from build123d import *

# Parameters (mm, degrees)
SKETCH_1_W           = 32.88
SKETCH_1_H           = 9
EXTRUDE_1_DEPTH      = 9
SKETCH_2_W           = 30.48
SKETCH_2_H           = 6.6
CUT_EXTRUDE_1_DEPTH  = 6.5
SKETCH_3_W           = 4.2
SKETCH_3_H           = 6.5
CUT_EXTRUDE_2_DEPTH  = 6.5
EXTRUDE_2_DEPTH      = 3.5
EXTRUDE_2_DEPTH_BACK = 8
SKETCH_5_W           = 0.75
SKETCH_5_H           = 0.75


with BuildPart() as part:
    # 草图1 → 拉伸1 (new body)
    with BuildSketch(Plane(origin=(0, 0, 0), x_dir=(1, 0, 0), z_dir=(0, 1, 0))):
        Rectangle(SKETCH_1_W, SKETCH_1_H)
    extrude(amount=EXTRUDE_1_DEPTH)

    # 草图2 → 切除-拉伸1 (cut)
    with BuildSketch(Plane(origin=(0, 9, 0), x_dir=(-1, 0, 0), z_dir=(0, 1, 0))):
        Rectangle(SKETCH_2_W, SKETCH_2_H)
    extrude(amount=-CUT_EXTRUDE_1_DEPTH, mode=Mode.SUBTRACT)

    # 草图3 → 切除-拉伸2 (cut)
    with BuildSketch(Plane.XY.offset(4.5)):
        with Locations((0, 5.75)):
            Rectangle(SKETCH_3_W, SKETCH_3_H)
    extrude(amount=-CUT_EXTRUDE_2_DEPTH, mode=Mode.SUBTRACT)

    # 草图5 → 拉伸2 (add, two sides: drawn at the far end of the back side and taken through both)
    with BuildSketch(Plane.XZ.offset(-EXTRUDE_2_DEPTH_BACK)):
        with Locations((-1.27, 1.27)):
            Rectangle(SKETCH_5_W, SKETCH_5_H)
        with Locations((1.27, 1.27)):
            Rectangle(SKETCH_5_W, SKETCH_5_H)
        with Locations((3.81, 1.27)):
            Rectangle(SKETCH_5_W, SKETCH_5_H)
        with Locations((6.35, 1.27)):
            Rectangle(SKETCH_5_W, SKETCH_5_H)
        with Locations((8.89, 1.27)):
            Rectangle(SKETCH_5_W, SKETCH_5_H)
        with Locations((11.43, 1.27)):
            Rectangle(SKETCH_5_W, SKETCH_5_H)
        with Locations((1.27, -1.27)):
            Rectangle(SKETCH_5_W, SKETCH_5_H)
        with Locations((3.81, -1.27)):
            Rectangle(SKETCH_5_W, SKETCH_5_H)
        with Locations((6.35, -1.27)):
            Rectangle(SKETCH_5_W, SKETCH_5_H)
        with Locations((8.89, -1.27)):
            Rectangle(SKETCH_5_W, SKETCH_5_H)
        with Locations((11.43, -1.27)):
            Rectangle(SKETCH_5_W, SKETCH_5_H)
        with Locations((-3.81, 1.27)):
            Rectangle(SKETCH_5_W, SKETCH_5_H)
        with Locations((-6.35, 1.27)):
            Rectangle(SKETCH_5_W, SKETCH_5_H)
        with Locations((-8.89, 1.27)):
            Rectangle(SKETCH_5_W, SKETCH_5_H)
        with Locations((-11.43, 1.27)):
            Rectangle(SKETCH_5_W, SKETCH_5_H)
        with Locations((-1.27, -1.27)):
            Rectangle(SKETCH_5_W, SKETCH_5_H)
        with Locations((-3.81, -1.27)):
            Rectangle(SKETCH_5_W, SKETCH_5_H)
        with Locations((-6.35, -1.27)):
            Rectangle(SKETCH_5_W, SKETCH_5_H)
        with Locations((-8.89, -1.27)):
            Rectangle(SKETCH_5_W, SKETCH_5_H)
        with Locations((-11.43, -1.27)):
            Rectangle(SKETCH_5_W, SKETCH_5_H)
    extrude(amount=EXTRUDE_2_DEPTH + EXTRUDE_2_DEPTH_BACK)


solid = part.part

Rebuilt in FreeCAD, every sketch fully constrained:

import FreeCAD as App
import Part
import Sketcher
from FreeCAD import Vector
Q = App.Units.Quantity

doc = App.newDocument("Part")
params = doc.addObject("Spreadsheet::Sheet", "Params")
for row, (alias, value) in enumerate([
    ("sketch1_height", "9 mm"),
    ("sketch1_width", "32.88 mm"),
    ("pad1_length", "9 mm"),
    ("sketch2_height", "6.6 mm"),
    ("sketch2_width", "30.48 mm"),
    ("pocket1_length", "6.5 mm"),
    ("sketch3_width", "4.2 mm"),
    ("sketch3_height", "6.5 mm"),
    ("pocket2_length", "6.5 mm"),
    ("sketch4_width", "0.75 mm"),
    ("pad2_length", "3.5 mm"),
    ("pad2_length2", "8 mm"),
], start=1):
    params.set(f"A{row}", alias)
    params.set(f"B{row}", "=" + value)
    params.setAlias(f"B{row}", alias)

body = doc.addObject("PartDesign::Body", "Body")

sketch1 = body.newObject("Sketcher::SketchObject", "Sketch")
sketch1.AttachmentSupport = (doc.getObject("XZ_Plane"), [""])
sketch1.MapMode = "FlatFace"
sketch1.addGeometry([
    Part.LineSegment(Vector(-16, -4, 0), Vector(-16, 4, 0)),
    Part.LineSegment(Vector(-16, 4, 0), Vector(16, 4, 0)),
    Part.LineSegment(Vector(16, 4, 0), Vector(16, -4, 0)),
    Part.LineSegment(Vector(16, -4, 0), Vector(-16, -4, 0)),
], False)
sketch1.addConstraint([
    Sketcher.Constraint("Coincident", 0, 2, 1, 1),
    Sketcher.Constraint("Coincident", 1, 2, 2, 1),
    Sketcher.Constraint("Coincident", 2, 2, 3, 1),
    Sketcher.Constraint("Coincident", 3, 2, 0, 1),
    Sketcher.Constraint("Vertical", 0),
    Sketcher.Constraint("Horizontal", 1),
    Sketcher.Constraint("Vertical", 2),
    Sketcher.Constraint("Horizontal", 3),
    Sketcher.Constraint("Symmetric", 0, 2, 2, 2, -1, 1),
    Sketcher.Constraint("DistanceY", 0, 1, 0, 2, Q("9 mm")),
    Sketcher.Constraint("DistanceX", 1, 1, 1, 2, Q("32.88 mm")),
])
sketch1.setExpression("Constraints[9]", "Params.sketch1_height")
sketch1.setExpression("Constraints[10]", "Params.sketch1_width")
pad1 = body.newObject("PartDesign::Pad", "Pad")
pad1.Profile = sketch1
pad1.setExpression("Length", "Params.pad1_length")
pad1.Reversed = True

sketch2 = body.newObject("Sketcher::SketchObject", "Sketch001")
sketch2.AttachmentSupport = (doc.getObject("XZ_Plane"), [""])
sketch2.MapMode = "FlatFace"
sketch2.AttachmentOffset = App.Placement(Vector(0, 0, -9), App.Rotation())
sketch2.addGeometry([
    Part.LineSegment(Vector(15, 3, 0), Vector(15, -3, 0)),
    Part.LineSegment(Vector(15, -3, 0), Vector(-15, -3, 0)),
    Part.LineSegment(Vector(-15, -3, 0), Vector(-15, 3, 0)),
    Part.LineSegment(Vector(-15, 3, 0), Vector(15, 3, 0)),
], False)
sketch2.addConstraint([
    Sketcher.Constraint("Coincident", 0, 2, 1, 1),
    Sketcher.Constraint("Coincident", 1, 2, 2, 1),
    Sketcher.Constraint("Coincident", 2, 2, 3, 1),
    Sketcher.Constraint("Coincident", 3, 2, 0, 1),
    Sketcher.Constraint("Vertical", 0),
    Sketcher.Constraint("Horizontal", 1),
    Sketcher.Constraint("Vertical", 2),
    Sketcher.Constraint("Horizontal", 3),
    Sketcher.Constraint("Symmetric", 0, 2, 2, 2, -1, 1),
    Sketcher.Constraint("DistanceY", 0, 2, 0, 1, Q("6.6 mm")),
    Sketcher.Constraint("DistanceX", 1, 2, 1, 1, Q("30.48 mm")),
])
sketch2.setExpression("Constraints[9]", "Params.sketch2_height")
sketch2.setExpression("Constraints[10]", "Params.sketch2_width")
pocket1 = body.newObject("PartDesign::Pocket", "Pocket")
pocket1.Profile = sketch2
pocket1.setExpression("Length", "Params.pocket1_length")
pocket1.Reversed = True

sketch3 = body.newObject("Sketcher::SketchObject", "Sketch002")
sketch3.AttachmentSupport = (doc.getObject("XY_Plane"), [""])
sketch3.MapMode = "FlatFace"
sketch3.AttachmentOffset = App.Placement(Vector(0, 0, 4.5), App.Rotation())
sketch3.addGeometry([
    Part.LineSegment(Vector(-2.1, 9, 0), Vector(-2.1, 2.5, 0)),
    Part.LineSegment(Vector(-2.1, 2.5, 0), Vector(2.1, 2.5, 0)),
    Part.LineSegment(Vector(2.1, 2.5, 0), Vector(2.1, 9, 0)),
    Part.LineSegment(Vector(2.1, 9, 0), Vector(-2.1, 9, 0)),
], False)
sketch3.addConstraint([
    Sketcher.Constraint("Coincident", 0, 2, 1, 1),
    Sketcher.Constraint("Coincident", 1, 2, 2, 1),
    Sketcher.Constraint("Coincident", 2, 2, 3, 1),
    Sketcher.Constraint("Coincident", 3, 2, 0, 1),
    Sketcher.Constraint("Vertical", 0),
    Sketcher.Constraint("Horizontal", 1),
    Sketcher.Constraint("Vertical", 2),
    Sketcher.Constraint("Horizontal", 3),
    Sketcher.Constraint("DistanceX", 1, 1, 1, 2, Q("4.2 mm")),
    Sketcher.Constraint("DistanceY", 0, 2, 0, 1, Q("6.5 mm")),
    Sketcher.Constraint("DistanceY", -1, 1, 2, 2, Q("9 mm")),
    Sketcher.Constraint("DistanceX", 0, 2, -1, 1, Q("2.1 mm")),
])
sketch3.setExpression("Constraints[8]", "Params.sketch3_width")
sketch3.setExpression("Constraints[9]", "Params.sketch3_height")
pocket2 = body.newObject("PartDesign::Pocket", "Pocket001")
pocket2.Profile = sketch3
pocket2.setExpression("Length", "Params.pocket2_length")

sketch4 = body.newObject("Sketcher::SketchObject", "Sketch003")
sketch4.AttachmentSupport = (doc.getObject("XZ_Plane"), [""])
sketch4.MapMode = "FlatFace"
sketch4.addGeometry([
    Part.LineSegment(Vector(-1.6, 1.6, 0), Vector(-1.6, 0.9, 0)),
    Part.LineSegment(Vector(-1.6, 0.9, 0), Vector(-0.9, 0.9, 0)),
    Part.LineSegment(Vector(-0.9, 0.9, 0), Vector(-0.9, 1.6, 0)),
    Part.LineSegment(Vector(-0.9, 1.6, 0), Vector(-1.6, 1.6, 0)),
    Part.LineSegment(Vector(0.9, 1.6, 0), Vector(0.9, 0.9, 0)),
    Part.LineSegment(Vector(0.9, 0.9, 0), Vector(1.6, 0.9, 0)),
    Part.LineSegment(Vector(1.6, 0.9, 0), Vector(1.6, 1.6, 0)),
    Part.LineSegment(Vector(1.6, 1.6, 0), Vector(0.9, 1.6, 0)),
    Part.LineSegment(Vector(3.4, 1.6, 0), Vector(3.4, 0.9, 0)),
    Part.LineSegment(Vector(3.4, 0.9, 0), Vector(4.2, 0.9, 0)),
    Part.LineSegment(Vector(4.2, 0.9, 0), Vector(4.2, 1.6, 0)),
    Part.LineSegment(Vector(4.2, 1.6, 0), Vector(3.4, 1.6, 0)),
    Part.LineSegment(Vector(6, 1.6, 0), Vector(6, 0.9, 0)),
    Part.LineSegment(Vector(6, 0.9, 0), Vector(6.7, 0.9, 0)),
    Part.LineSegment(Vector(6.7, 0.9, 0), Vector(6.7, 1.6, 0)),
    Part.LineSegment(Vector(6.7, 1.6, 0), Vector(6, 1.6, 0)),
    Part.LineSegment(Vector(8.5, 1.6, 0), Vector(8.5, 0.9, 0)),
    Part.LineSegment(Vector(8.5, 0.9, 0), Vector(9.3, 0.9, 0)),
    Part.LineSegment(Vector(9.3, 0.9, 0), Vector(9.3, 1.6, 0)),
    Part.LineSegment(Vector(9.3, 1.6, 0), Vector(8.5, 1.6, 0)),
    Part.LineSegment(Vector(11.1, 1.6, 0), Vector(11.1, 0.9, 0)),
    Part.LineSegment(Vector(11.1, 0.9, 0), Vector(11.8, 0.9, 0)),
    Part.LineSegment(Vector(11.8, 0.9, 0), Vector(11.8, 1.6, 0)),
    Part.LineSegment(Vector(11.8, 1.6, 0), Vector(11.1, 1.6, 0)),
    Part.LineSegment(Vector(0.9, -0.9, 0), Vector(0.9, -1.6, 0)),
    Part.LineSegment(Vector(0.9, -1.6, 0), Vector(1.6, -1.6, 0)),
    Part.LineSegment(Vector(1.6, -1.6, 0), Vector(1.6, -0.9, 0)),
    Part.LineSegment(Vector(1.6, -0.9, 0), Vector(0.9, -0.9, 0)),
    Part.LineSegment(Vector(3.4, -0.9, 0), Vector(3.4, -1.6, 0)),
    Part.LineSegment(Vector(3.4, -1.6, 0), Vector(4.2, -1.6, 0)),
    Part.LineSegment(Vector(4.2, -1.6, 0), Vector(4.2, -0.9, 0)),
    Part.LineSegment(Vector(4.2, -0.9, 0), Vector(3.4, -0.9, 0)),
    Part.LineSegment(Vector(6, -0.9, 0), Vector(6, -1.6, 0)),
    Part.LineSegment(Vector(6, -1.6, 0), Vector(6.7, -1.6, 0)),
    Part.LineSegment(Vector(6.7, -1.6, 0), Vector(6.7, -0.9, 0)),
    Part.LineSegment(Vector(6.7, -0.9, 0), Vector(6, -0.9, 0)),
    Part.LineSegment(Vector(8.5, -0.9, 0), Vector(8.5, -1.6, 0)),
    Part.LineSegment(Vector(8.5, -1.6, 0), Vector(9.3, -1.6, 0)),
    Part.LineSegment(Vector(9.3, -1.6, 0), Vector(9.3, -0.9, 0)),
    Part.LineSegment(Vector(9.3, -0.9, 0), Vector(8.5, -0.9, 0)),
    Part.LineSegment(Vector(11.1, -0.9, 0), Vector(11.1, -1.6, 0)),
    Part.LineSegment(Vector(11.1, -1.6, 0), Vector(11.8, -1.6, 0)),
    Part.LineSegment(Vector(11.8, -1.6, 0), Vector(11.8, -0.9, 0)),
    Part.LineSegment(Vector(11.8, -0.9, 0), Vector(11.1, -0.9, 0)),
    Part.LineSegment(Vector(-4.2, 1.6, 0), Vector(-4.2, 0.9, 0)),
    Part.LineSegment(Vector(-4.2, 0.9, 0), Vector(-3.4, 0.9, 0)),
    Part.LineSegment(Vector(-3.4, 0.9, 0), Vector(-3.4, 1.6, 0)),
    Part.LineSegment(Vector(-3.4, 1.6, 0), Vector(-4.2, 1.6, 0)),
    Part.LineSegment(Vector(-6.7, 1.6, 0), Vector(-6.7, 0.9, 0)),
    Part.LineSegment(Vector(-6.7, 0.9, 0), Vector(-6, 0.9, 0)),
    Part.LineSegment(Vector(-6, 0.9, 0), Vector(-6, 1.6, 0)),
    Part.LineSegment(Vector(-6, 1.6, 0), Vector(-6.7, 1.6, 0)),
    Part.LineSegment(Vector(-9.3, 1.6, 0), Vector(-9.3, 0.9, 0)),
    Part.LineSegment(Vector(-9.3, 0.9, 0), Vector(-8.5, 0.9, 0)),
    Part.LineSegment(Vector(-8.5, 0.9, 0), Vector(-8.5, 1.6, 0)),
    Part.LineSegment(Vector(-8.5, 1.6, 0), Vector(-9.3, 1.6, 0)),
    Part.LineSegment(Vector(-11.8, 1.6, 0), Vector(-11.8, 0.9, 0)),
    Part.LineSegment(Vector(-11.8, 0.9, 0), Vector(-11.1, 0.9, 0)),
    Part.LineSegment(Vector(-11.1, 0.9, 0), Vector(-11.1, 1.6, 0)),
    Part.LineSegment(Vector(-11.1, 1.6, 0), Vector(-11.8, 1.6, 0)),
    Part.LineSegment(Vector(-1.6, -0.9, 0), Vector(-1.6, -1.6, 0)),
    Part.LineSegment(Vector(-1.6, -1.6, 0), Vector(-0.9, -1.6, 0)),
    Part.LineSegment(Vector(-0.9, -1.6, 0), Vector(-0.9, -0.9, 0)),
    Part.LineSegment(Vector(-0.9, -0.9, 0), Vector(-1.6, -0.9, 0)),
    Part.LineSegment(Vector(-4.2, -0.9, 0), Vector(-4.2, -1.6, 0)),
    Part.LineSegment(Vector(-4.2, -1.6, 0), Vector(-3.4, -1.6, 0)),
    Part.LineSegment(Vector(-3.4, -1.6, 0), Vector(-3.4, -0.9, 0)),
    Part.LineSegment(Vector(-3.4, -0.9, 0), Vector(-4.2, -0.9, 0)),
    Part.LineSegment(Vector(-6.7, -0.9, 0), Vector(-6.7, -1.6, 0)),
    Part.LineSegment(Vector(-6.7, -1.6, 0), Vector(-6, -1.6, 0)),
    Part.LineSegment(Vector(-6, -1.6, 0), Vector(-6, -0.9, 0)),
    Part.LineSegment(Vector(-6, -0.9, 0), Vector(-6.7, -0.9, 0)),
    Part.LineSegment(Vector(-9.3, -0.9, 0), Vector(-9.3, -1.6, 0)),
    Part.LineSegment(Vector(-9.3, -1.6, 0), Vector(-8.5, -1.6, 0)),
    Part.LineSegment(Vector(-8.5, -1.6, 0), Vector(-8.5, -0.9, 0)),
    Part.LineSegment(Vector(-8.5, -0.9, 0), Vector(-9.3, -0.9, 0)),
    Part.LineSegment(Vector(-11.8, -0.9, 0), Vector(-11.8, -1.6, 0)),
    Part.LineSegment(Vector(-11.8, -1.6, 0), Vector(-11.1, -1.6, 0)),
    Part.LineSegment(Vector(-11.1, -1.6, 0), Vector(-11.1, -0.9, 0)),
    Part.LineSegment(Vector(-11.1, -0.9, 0), Vector(-11.8, -0.9, 0)),
], False)
sketch4.addConstraint([
    Sketcher.Constraint("Coincident", 0, 2, 1, 1),
    Sketcher.Constraint("Coincident", 1, 2, 2, 1),
    Sketcher.Constraint("Coincident", 2, 2, 3, 1),
    Sketcher.Constraint("Coincident", 3, 2, 0, 1),
    Sketcher.Constraint("Coincident", 4, 2, 5, 1),
    Sketcher.Constraint("Coincident", 5, 2, 6, 1),
    Sketcher.Constraint("Coincident", 6, 2, 7, 1),
    Sketcher.Constraint("Coincident", 7, 2, 4, 1),
    Sketcher.Constraint("Coincident", 8, 2, 9, 1),
    Sketcher.Constraint("Coincident", 9, 2, 10, 1),
    Sketcher.Constraint("Coincident", 10, 2, 11, 1),
    Sketcher.Constraint("Coincident", 11, 2, 8, 1),
    Sketcher.Constraint("Coincident", 12, 2, 13, 1),
    Sketcher.Constraint("Coincident", 13, 2, 14, 1),
    Sketcher.Constraint("Coincident", 14, 2, 15, 1),
    Sketcher.Constraint("Coincident", 15, 2, 12, 1),
    Sketcher.Constraint("Coincident", 16, 2, 17, 1),
    Sketcher.Constraint("Coincident", 17, 2, 18, 1),
    Sketcher.Constraint("Coincident", 18, 2, 19, 1),
    Sketcher.Constraint("Coincident", 19, 2, 16, 1),
    Sketcher.Constraint("Coincident", 20, 2, 21, 1),
    Sketcher.Constraint("Coincident", 21, 2, 22, 1),
    Sketcher.Constraint("Coincident", 22, 2, 23, 1),
    Sketcher.Constraint("Coincident", 23, 2, 20, 1),
    Sketcher.Constraint("Coincident", 24, 2, 25, 1),
    Sketcher.Constraint("Coincident", 25, 2, 26, 1),
    Sketcher.Constraint("Coincident", 26, 2, 27, 1),
    Sketcher.Constraint("Coincident", 27, 2, 24, 1),
    Sketcher.Constraint("Coincident", 28, 2, 29, 1),
    Sketcher.Constraint("Coincident", 29, 2, 30, 1),
    Sketcher.Constraint("Coincident", 30, 2, 31, 1),
    Sketcher.Constraint("Coincident", 31, 2, 28, 1),
    Sketcher.Constraint("Coincident", 32, 2, 33, 1),
    Sketcher.Constraint("Coincident", 33, 2, 34, 1),
    Sketcher.Constraint("Coincident", 34, 2, 35, 1),
    Sketcher.Constraint("Coincident", 35, 2, 32, 1),
    Sketcher.Constraint("Coincident", 36, 2, 37, 1),
    Sketcher.Constraint("Coincident", 37, 2, 38, 1),
    Sketcher.Constraint("Coincident", 38, 2, 39, 1),
    Sketcher.Constraint("Coincident", 39, 2, 36, 1),
    Sketcher.Constraint("Coincident", 40, 2, 41, 1),
    Sketcher.Constraint("Coincident", 41, 2, 42, 1),
    Sketcher.Constraint("Coincident", 42, 2, 43, 1),
    Sketcher.Constraint("Coincident", 43, 2, 40, 1),
    Sketcher.Constraint("Coincident", 44, 2, 45, 1),
    Sketcher.Constraint("Coincident", 45, 2, 46, 1),
    Sketcher.Constraint("Coincident", 46, 2, 47, 1),
    Sketcher.Constraint("Coincident", 47, 2, 44, 1),
    Sketcher.Constraint("Coincident", 48, 2, 49, 1),
    Sketcher.Constraint("Coincident", 49, 2, 50, 1),
    Sketcher.Constraint("Coincident", 50, 2, 51, 1),
    Sketcher.Constraint("Coincident", 51, 2, 48, 1),
    Sketcher.Constraint("Coincident", 52, 2, 53, 1),
    Sketcher.Constraint("Coincident", 53, 2, 54, 1),
    Sketcher.Constraint("Coincident", 54, 2, 55, 1),
    Sketcher.Constraint("Coincident", 55, 2, 52, 1),
    Sketcher.Constraint("Coincident", 56, 2, 57, 1),
    Sketcher.Constraint("Coincident", 57, 2, 58, 1),
    Sketcher.Constraint("Coincident", 58, 2, 59, 1),
    Sketcher.Constraint("Coincident", 59, 2, 56, 1),
    Sketcher.Constraint("Coincident", 60, 2, 61, 1),
    Sketcher.Constraint("Coincident", 61, 2, 62, 1),
    Sketcher.Constraint("Coincident", 62, 2, 63, 1),
    Sketcher.Constraint("Coincident", 63, 2, 60, 1),
    Sketcher.Constraint("Coincident", 64, 2, 65, 1),
    Sketcher.Constraint("Coincident", 65, 2, 66, 1),
    Sketcher.Constraint("Coincident", 66, 2, 67, 1),
    Sketcher.Constraint("Coincident", 67, 2, 64, 1),
    Sketcher.Constraint("Coincident", 68, 2, 69, 1),
    Sketcher.Constraint("Coincident", 69, 2, 70, 1),
    Sketcher.Constraint("Coincident", 70, 2, 71, 1),
    Sketcher.Constraint("Coincident", 71, 2, 68, 1),
    Sketcher.Constraint("Coincident", 72, 2, 73, 1),
    Sketcher.Constraint("Coincident", 73, 2, 74, 1),
    Sketcher.Constraint("Coincident", 74, 2, 75, 1),
    Sketcher.Constraint("Coincident", 75, 2, 72, 1),
    Sketcher.Constraint("Coincident", 76, 2, 77, 1),
    Sketcher.Constraint("Coincident", 77, 2, 78, 1),
    Sketcher.Constraint("Coincident", 78, 2, 79, 1),
    Sketcher.Constraint("Coincident", 79, 2, 76, 1),
    Sketcher.Constraint("Vertical", 0),
    Sketcher.Constraint("Horizontal", 1),
    Sketcher.Constraint("Vertical", 2),
    Sketcher.Constraint("Horizontal", 3),
    Sketcher.Constraint("Vertical", 4),
    Sketcher.Constraint("Horizontal", 5),
    Sketcher.Constraint("Vertical", 6),
    Sketcher.Constraint("Horizontal", 7),
    Sketcher.Constraint("Vertical", 8),
    Sketcher.Constraint("Horizontal", 9),
    Sketcher.Constraint("Vertical", 10),
    Sketcher.Constraint("Horizontal", 11),
    Sketcher.Constraint("Vertical", 12),
    Sketcher.Constraint("Horizontal", 13),
    Sketcher.Constraint("Vertical", 14),
    Sketcher.Constraint("Horizontal", 15),
    Sketcher.Constraint("Vertical", 16),
    Sketcher.Constraint("Horizontal", 17),
    Sketcher.Constraint("Vertical", 18),
    Sketcher.Constraint("Horizontal", 19),
    Sketcher.Constraint("Vertical", 20),
    Sketcher.Constraint("Horizontal", 21),
    Sketcher.Constraint("Vertical", 22),
    Sketcher.Constraint("Horizontal", 23),
    Sketcher.Constraint("Vertical", 24),
    Sketcher.Constraint("Horizontal", 25),
    Sketcher.Constraint("Vertical", 26),
    Sketcher.Constraint("Horizontal", 27),
    Sketcher.Constraint("Vertical", 28),
    Sketcher.Constraint("Horizontal", 29),
    Sketcher.Constraint("Vertical", 30),
    Sketcher.Constraint("Horizontal", 31),
    Sketcher.Constraint("Vertical", 32),
    Sketcher.Constraint("Horizontal", 33),
    Sketcher.Constraint("Vertical", 34),
    Sketcher.Constraint("Horizontal", 35),
    Sketcher.Constraint("Vertical", 36),
    Sketcher.Constraint("Horizontal", 37),
    Sketcher.Constraint("Vertical", 38),
    Sketcher.Constraint("Horizontal", 39),
    Sketcher.Constraint("Vertical", 40),
    Sketcher.Constraint("Horizontal", 41),
    Sketcher.Constraint("Vertical", 42),
    Sketcher.Constraint("Horizontal", 43),
    Sketcher.Constraint("Vertical", 44),
    Sketcher.Constraint("Horizontal", 45),
    Sketcher.Constraint("Vertical", 46),
    Sketcher.Constraint("Horizontal", 47),
    Sketcher.Constraint("Vertical", 48),
    Sketcher.Constraint("Horizontal", 49),
    Sketcher.Constraint("Vertical", 50),
    Sketcher.Constraint("Horizontal", 51),
    Sketcher.Constraint("Vertical", 52),
    Sketcher.Constraint("Horizontal", 53),
    Sketcher.Constraint("Vertical", 54),
    Sketcher.Constraint("Horizontal", 55),
    Sketcher.Constraint("Vertical", 56),
    Sketcher.Constraint("Horizontal", 57),
    Sketcher.Constraint("Vertical", 58),
    Sketcher.Constraint("Horizontal", 59),
    Sketcher.Constraint("Vertical", 60),
    Sketcher.Constraint("Horizontal", 61),
    Sketcher.Constraint("Vertical", 62),
    Sketcher.Constraint("Horizontal", 63),
    Sketcher.Constraint("Vertical", 64),
    Sketcher.Constraint("Horizontal", 65),
    Sketcher.Constraint("Vertical", 66),
    Sketcher.Constraint("Horizontal", 67),
    Sketcher.Constraint("Vertical", 68),
    Sketcher.Constraint("Horizontal", 69),
    Sketcher.Constraint("Vertical", 70),
    Sketcher.Constraint("Horizontal", 71),
    Sketcher.Constraint("Vertical", 72),
    Sketcher.Constraint("Horizontal", 73),
    Sketcher.Constraint("Vertical", 74),
    Sketcher.Constraint("Horizontal", 75),
    Sketcher.Constraint("Vertical", 76),
    Sketcher.Constraint("Horizontal", 77),
    Sketcher.Constraint("Vertical", 78),
    Sketcher.Constraint("Horizontal", 79),
    Sketcher.Constraint("Symmetric", 2, 2, 24, 2, -1, 1),
    Sketcher.Constraint("Symmetric", 0, 2, 26, 2, -1, 1),
    Sketcher.Constraint("Symmetric", 30, 2, 44, 2, -1, 1),
    Sketcher.Constraint("Symmetric", 28, 2, 46, 2, -1, 1),
    Sketcher.Constraint("Symmetric", 34, 2, 48, 2, -1, 1),
    Sketcher.Constraint("Symmetric", 32, 2, 50, 2, -1, 1),
    Sketcher.Constraint("Symmetric", 38, 2, 52, 2, -1, 1),
    Sketcher.Constraint("Symmetric", 36, 2, 54, 2, -1, 1),
    Sketcher.Constraint("Symmetric", 42, 2, 56, 2, -1, 1),
    Sketcher.Constraint("Symmetric", 40, 2, 58, 2, -1, 1),
    Sketcher.Constraint("Symmetric", 6, 2, 60, 2, -1, 1),
    Sketcher.Constraint("Symmetric", 4, 2, 62, 2, -1, 1),
    Sketcher.Constraint("Symmetric", 10, 2, 64, 2, -1, 1),
    Sketcher.Constraint("Symmetric", 8, 2, 66, 2, -1, 1),
    Sketcher.Constraint("Symmetric", 14, 2, 68, 2, -1, 1),
    Sketcher.Constraint("Symmetric", 12, 2, 70, 2, -1, 1),
    Sketcher.Constraint("Symmetric", 18, 2, 72, 2, -1, 1),
    Sketcher.Constraint("Symmetric", 16, 2, 74, 2, -1, 1),
    Sketcher.Constraint("Symmetric", 22, 2, 76, 2, -1, 1),
    Sketcher.Constraint("Symmetric", 20, 2, 78, 2, -1, 1),
    Sketcher.Constraint("Symmetric", 1, 2, 4, 2, -2),
    Sketcher.Constraint("Symmetric", 3, 2, 6, 2, -2),
    Sketcher.Constraint("Symmetric", 9, 2, 44, 2, -2),
    Sketcher.Constraint("Symmetric", 11, 2, 46, 2, -2),
    Sketcher.Constraint("Symmetric", 13, 2, 48, 2, -2),
    Sketcher.Constraint("Symmetric", 15, 2, 50, 2, -2),
    Sketcher.Constraint("Symmetric", 17, 2, 52, 2, -2),
    Sketcher.Constraint("Symmetric", 19, 2, 54, 2, -2),
    Sketcher.Constraint("Symmetric", 21, 2, 56, 2, -2),
    Sketcher.Constraint("Symmetric", 23, 2, 58, 2, -2),
    Sketcher.Constraint("Horizontal", 5, 2, 8, 2),
    Sketcher.Constraint("Horizontal", 7, 2, 10, 2),
    Sketcher.Constraint("Horizontal", 9, 2, 12, 2),
    Sketcher.Constraint("Horizontal", 11, 2, 14, 2),
    Sketcher.Constraint("Horizontal", 13, 2, 16, 2),
    Sketcher.Constraint("Horizontal", 15, 2, 18, 2),
    Sketcher.Constraint("Horizontal", 17, 2, 20, 2),
    Sketcher.Constraint("Horizontal", 19, 2, 22, 2),
    Sketcher.Constraint("Equal", 7, 9),
    Sketcher.Constraint("Equal", 11, 13),
    Sketcher.Constraint("Equal", 15, 17),
    Sketcher.Constraint("Equal", 19, 21),
    Sketcher.Constraint("Equal", 79, 0),
    Sketcher.Constraint("DistanceX", 1, 1, 1, 2, Q("0.75 mm")),
    Sketcher.Constraint("DistanceX", 0, 2, -1, 1, Q("1.645 mm")),
    Sketcher.Constraint("DistanceY", -1, 1, 0, 2, Q("0.895 mm")),
    Sketcher.Constraint("DistanceX", -1, 1, 8, 2, Q("3.435 mm")),
    Sketcher.Constraint("DistanceX", -1, 1, 12, 2, Q("5.975 mm")),
    Sketcher.Constraint("DistanceX", -1, 1, 16, 2, Q("8.515 mm")),
    Sketcher.Constraint("DistanceX", -1, 1, 20, 2, Q("11.055 mm")),
])
sketch4.setExpression("Constraints[203]", "Params.sketch4_width")
pad2 = body.newObject("PartDesign::Pad", "Pad001")
pad2.Profile = sketch4
pad2.Type = "TwoLengths"
pad2.setExpression("Length", "Params.pad2_length")
pad2.setExpression("Length2", "Params.pad2_length2")

doc.recompute()
